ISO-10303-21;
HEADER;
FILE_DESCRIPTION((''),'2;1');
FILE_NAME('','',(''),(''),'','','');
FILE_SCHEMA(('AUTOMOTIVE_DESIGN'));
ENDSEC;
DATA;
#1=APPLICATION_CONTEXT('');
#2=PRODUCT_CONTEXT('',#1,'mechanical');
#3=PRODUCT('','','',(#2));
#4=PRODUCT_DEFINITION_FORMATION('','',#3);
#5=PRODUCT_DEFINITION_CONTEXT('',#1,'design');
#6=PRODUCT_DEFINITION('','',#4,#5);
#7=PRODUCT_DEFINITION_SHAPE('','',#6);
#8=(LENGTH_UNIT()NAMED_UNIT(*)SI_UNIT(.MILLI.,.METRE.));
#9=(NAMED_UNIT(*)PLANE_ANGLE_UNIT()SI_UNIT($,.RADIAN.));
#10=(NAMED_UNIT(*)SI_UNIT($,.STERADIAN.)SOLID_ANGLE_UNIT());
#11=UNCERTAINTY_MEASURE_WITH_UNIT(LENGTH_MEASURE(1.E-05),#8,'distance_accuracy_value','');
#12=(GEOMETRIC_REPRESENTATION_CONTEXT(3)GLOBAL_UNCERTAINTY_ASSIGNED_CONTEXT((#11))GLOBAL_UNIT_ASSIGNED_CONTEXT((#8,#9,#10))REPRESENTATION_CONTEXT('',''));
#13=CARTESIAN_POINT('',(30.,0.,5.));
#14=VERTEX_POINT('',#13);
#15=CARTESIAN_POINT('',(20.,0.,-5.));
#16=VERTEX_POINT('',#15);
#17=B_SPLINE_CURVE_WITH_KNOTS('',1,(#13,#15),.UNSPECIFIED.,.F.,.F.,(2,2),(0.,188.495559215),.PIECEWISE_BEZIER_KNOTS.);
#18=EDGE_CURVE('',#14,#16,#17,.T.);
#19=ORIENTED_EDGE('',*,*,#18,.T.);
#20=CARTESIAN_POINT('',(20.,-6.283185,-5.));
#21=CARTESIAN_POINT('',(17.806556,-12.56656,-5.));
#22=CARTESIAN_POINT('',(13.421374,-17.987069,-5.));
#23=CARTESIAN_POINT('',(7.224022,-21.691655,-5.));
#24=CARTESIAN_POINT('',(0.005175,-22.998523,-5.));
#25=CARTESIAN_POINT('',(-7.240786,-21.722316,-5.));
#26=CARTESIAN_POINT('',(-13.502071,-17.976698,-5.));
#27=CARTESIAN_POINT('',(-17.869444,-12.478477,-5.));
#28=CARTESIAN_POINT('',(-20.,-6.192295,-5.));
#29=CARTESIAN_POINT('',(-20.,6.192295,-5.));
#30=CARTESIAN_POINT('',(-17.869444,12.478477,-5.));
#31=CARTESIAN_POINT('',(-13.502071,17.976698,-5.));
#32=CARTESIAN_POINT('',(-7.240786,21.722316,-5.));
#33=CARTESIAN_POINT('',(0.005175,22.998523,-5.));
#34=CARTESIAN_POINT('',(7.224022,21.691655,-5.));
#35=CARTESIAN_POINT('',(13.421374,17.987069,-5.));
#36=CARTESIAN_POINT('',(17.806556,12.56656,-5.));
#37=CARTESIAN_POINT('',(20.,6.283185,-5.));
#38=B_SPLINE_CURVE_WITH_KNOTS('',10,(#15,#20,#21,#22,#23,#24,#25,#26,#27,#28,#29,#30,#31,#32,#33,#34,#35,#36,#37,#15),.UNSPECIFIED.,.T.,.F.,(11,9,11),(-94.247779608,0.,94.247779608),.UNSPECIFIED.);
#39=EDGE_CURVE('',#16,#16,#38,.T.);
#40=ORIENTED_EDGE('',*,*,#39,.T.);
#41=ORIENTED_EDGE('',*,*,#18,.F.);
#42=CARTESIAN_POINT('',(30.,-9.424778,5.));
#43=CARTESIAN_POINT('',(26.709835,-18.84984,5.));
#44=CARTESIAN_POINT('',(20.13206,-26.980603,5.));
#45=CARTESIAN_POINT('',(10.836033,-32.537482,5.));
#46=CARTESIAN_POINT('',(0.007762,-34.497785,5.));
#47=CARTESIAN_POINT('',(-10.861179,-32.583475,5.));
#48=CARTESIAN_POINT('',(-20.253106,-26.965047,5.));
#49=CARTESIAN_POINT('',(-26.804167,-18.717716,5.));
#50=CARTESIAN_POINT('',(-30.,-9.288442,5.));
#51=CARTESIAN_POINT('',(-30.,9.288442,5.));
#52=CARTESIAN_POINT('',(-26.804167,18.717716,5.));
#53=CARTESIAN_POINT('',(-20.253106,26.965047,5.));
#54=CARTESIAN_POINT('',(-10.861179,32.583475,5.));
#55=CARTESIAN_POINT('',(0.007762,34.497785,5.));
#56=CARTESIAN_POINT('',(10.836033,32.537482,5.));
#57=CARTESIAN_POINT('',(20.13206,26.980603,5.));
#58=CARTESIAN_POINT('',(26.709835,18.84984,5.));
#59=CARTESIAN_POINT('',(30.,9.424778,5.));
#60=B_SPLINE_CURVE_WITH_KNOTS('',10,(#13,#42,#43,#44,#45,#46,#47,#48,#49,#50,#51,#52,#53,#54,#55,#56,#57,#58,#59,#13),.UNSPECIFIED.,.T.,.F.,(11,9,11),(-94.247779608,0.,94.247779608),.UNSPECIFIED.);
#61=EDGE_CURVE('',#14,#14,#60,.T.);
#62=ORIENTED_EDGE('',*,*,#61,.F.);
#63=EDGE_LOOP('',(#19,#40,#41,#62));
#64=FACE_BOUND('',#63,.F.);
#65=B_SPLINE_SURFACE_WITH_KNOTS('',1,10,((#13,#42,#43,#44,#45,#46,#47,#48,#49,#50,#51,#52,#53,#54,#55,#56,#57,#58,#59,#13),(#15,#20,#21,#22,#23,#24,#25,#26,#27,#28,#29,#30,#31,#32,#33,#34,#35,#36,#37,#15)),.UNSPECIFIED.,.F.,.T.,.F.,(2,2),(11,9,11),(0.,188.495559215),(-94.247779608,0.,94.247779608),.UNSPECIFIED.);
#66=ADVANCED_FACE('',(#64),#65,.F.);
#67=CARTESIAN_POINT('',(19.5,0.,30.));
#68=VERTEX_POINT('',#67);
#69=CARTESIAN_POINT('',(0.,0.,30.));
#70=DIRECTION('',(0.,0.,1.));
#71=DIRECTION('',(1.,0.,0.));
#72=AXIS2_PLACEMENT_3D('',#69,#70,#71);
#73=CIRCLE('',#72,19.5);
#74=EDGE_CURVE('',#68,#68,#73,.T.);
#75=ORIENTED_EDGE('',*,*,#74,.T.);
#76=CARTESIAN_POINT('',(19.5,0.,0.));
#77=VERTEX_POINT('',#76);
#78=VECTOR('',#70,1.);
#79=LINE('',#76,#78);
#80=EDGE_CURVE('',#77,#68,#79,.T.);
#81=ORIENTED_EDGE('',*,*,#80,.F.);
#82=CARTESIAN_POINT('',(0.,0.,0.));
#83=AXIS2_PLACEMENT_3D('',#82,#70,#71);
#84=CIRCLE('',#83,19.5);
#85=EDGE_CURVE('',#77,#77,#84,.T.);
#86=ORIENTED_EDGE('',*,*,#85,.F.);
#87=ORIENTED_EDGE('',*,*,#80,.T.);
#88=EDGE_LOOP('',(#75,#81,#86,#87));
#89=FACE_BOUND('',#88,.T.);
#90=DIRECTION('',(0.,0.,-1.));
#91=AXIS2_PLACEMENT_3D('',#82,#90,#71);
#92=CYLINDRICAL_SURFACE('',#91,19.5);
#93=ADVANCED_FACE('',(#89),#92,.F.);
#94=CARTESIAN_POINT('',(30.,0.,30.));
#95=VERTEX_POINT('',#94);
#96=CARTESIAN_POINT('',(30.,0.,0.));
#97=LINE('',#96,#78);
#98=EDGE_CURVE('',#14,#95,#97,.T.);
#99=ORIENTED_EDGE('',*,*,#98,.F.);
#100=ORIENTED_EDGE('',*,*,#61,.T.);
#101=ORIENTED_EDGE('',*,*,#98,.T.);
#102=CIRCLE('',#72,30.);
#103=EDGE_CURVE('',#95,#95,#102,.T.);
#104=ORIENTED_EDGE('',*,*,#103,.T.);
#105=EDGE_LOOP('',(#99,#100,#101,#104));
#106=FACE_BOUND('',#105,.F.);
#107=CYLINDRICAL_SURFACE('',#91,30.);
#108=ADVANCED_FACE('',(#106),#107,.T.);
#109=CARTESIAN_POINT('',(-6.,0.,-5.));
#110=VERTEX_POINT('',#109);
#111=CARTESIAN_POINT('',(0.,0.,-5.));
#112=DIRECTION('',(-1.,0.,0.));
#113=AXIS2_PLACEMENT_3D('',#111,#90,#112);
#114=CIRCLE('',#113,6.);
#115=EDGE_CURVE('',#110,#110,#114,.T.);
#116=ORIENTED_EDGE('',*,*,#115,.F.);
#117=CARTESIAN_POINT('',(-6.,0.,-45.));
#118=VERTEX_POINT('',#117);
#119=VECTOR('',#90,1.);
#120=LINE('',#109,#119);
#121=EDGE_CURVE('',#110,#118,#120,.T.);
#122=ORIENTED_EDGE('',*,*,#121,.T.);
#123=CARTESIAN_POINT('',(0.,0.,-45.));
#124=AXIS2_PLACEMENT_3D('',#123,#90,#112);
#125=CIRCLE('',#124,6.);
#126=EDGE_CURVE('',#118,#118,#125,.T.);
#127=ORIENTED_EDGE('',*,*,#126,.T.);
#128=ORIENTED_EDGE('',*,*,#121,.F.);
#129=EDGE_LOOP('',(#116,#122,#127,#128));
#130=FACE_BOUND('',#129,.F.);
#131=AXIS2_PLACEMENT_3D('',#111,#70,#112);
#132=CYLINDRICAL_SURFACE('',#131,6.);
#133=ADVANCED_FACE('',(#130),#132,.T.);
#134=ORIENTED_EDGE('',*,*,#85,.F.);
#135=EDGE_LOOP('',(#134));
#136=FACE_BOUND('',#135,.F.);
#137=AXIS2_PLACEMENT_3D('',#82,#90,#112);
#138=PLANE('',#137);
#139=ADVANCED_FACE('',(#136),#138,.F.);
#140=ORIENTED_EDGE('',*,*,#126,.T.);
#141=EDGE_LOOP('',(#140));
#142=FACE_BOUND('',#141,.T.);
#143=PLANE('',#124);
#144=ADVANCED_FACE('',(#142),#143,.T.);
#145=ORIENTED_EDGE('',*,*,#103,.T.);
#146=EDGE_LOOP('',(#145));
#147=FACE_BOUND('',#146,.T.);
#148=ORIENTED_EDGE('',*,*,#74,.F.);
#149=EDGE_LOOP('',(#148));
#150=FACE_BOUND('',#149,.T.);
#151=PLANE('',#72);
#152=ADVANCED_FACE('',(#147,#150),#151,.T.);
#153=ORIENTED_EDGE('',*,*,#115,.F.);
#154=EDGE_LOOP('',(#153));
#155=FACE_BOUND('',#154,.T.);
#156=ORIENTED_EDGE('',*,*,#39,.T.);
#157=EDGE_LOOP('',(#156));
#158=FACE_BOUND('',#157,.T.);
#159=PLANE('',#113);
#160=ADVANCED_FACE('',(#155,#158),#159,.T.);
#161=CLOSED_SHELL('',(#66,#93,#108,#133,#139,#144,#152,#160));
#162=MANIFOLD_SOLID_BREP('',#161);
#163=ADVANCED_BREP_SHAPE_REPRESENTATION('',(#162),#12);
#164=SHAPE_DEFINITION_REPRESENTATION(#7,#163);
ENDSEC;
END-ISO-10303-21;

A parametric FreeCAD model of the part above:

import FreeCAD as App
import Part
import Sketcher


def edges_at(feature, points):
    """Names of the edges that pass closest to the given points."""
    edges = feature.Shape.Edges
    near = lambda p: min(range(len(edges)), key=lambda i: edges[i].distToShape(Part.Vertex(*p))[0])
    return sorted({f"Edge{near(p) + 1}" for p in points})

doc = App.newDocument("Part")
params = doc.addObject("Spreadsheet::Sheet", "Params")
for row, (alias, value) in enumerate([
    ("sketch1_diameter", "60 mm"),
    ("sketch1_diameter2", "39 mm"),
    ("pad1_length", "30 mm"),
    ("sketch2_diameter", "60 mm"),
    ("pad2_length", "5 mm"),
    ("sketch3_diameter", "12 mm"),
    ("pad3_length", "40 mm"),
    ("chamfer_size", "10 mm"),
], start=1):
    params.set(f"A{row}", alias)
    params.set(f"B{row}", "=" + value)
    params.setAlias(f"B{row}", alias)

body = doc.addObject("PartDesign::Body", "Body")

sketch1 = body.newObject("Sketcher::SketchObject", "Sketch")
sketch1.AttachmentSupport = (doc.getObject("XY_Plane"), [""])
sketch1.MapMode = "FlatFace"
sketch1.addGeometry(Part.Circle(App.Vector(0, 0, 0), App.Vector(0, 0, 1), 30), False)
sketch1.addGeometry(Part.Circle(App.Vector(0, 0, 0), App.Vector(0, 0, 1), 20), False)
sketch1.addConstraint(Sketcher.Constraint("Coincident", 0, 3, -1, 1))
sketch1.addConstraint(Sketcher.Constraint("Coincident", 1, 3, -1, 1))
sketch1.addConstraint(Sketcher.Constraint("Diameter", 0, 60.0))
sketch1.addConstraint(Sketcher.Constraint("Diameter", 1, 39.0))
sketch1.setExpression("Constraints[2]", "Params.sketch1_diameter")
sketch1.setExpression("Constraints[3]", "Params.sketch1_diameter2")
pad1 = body.newObject("PartDesign::Pad", "Pad")
pad1.Profile = sketch1
pad1.setExpression("Length", "Params.pad1_length")

sketch2 = body.newObject("Sketcher::SketchObject", "Sketch001")
sketch2.AttachmentSupport = (doc.getObject("XY_Plane"), [""])
sketch2.MapMode = "FlatFace"
sketch2.addGeometry(Part.Circle(App.Vector(0, 0, 0), App.Vector(0, 0, 1), 30), False)
sketch2.addConstraint(Sketcher.Constraint("Coincident", 0, 3, -1, 1))
sketch2.addConstraint(Sketcher.Constraint("Diameter", 0, 60.0))
sketch2.setExpression("Constraints[1]", "Params.sketch2_diameter")
pad2 = body.newObject("PartDesign::Pad", "Pad001")
pad2.Profile = sketch2
pad2.setExpression("Length", "Params.pad2_length")
pad2.Reversed = True

sketch3 = body.newObject("Sketcher::SketchObject", "Sketch002")
sketch3.AttachmentSupport = (doc.getObject("XY_Plane"), [""])
sketch3.MapMode = "FlatFace"
sketch3.AttachmentOffset = App.Placement(App.Vector(0, 0, -5), App.Rotation())
sketch3.addGeometry(Part.Circle(App.Vector(0, 0, 0), App.Vector(0, 0, 1), 6), False)
sketch3.addConstraint(Sketcher.Constraint("Coincident", 0, 3, -1, 1))
sketch3.addConstraint(Sketcher.Constraint("Diameter", 0, 12.0))
sketch3.setExpression("Constraints[1]", "Params.sketch3_diameter")
pad3 = body.newObject("PartDesign::Pad", "Pad002")
pad3.Profile = sketch3
pad3.setExpression("Length", "Params.pad3_length")
pad3.Reversed = True
doc.recompute()

chamfer = body.newObject("PartDesign::Chamfer", "Chamfer")
chamfer.Base = (pad3, edges_at(pad3, [(30, 0, -5)]))
chamfer.setExpression("Size", "Params.chamfer_size")

doc.recompute()
